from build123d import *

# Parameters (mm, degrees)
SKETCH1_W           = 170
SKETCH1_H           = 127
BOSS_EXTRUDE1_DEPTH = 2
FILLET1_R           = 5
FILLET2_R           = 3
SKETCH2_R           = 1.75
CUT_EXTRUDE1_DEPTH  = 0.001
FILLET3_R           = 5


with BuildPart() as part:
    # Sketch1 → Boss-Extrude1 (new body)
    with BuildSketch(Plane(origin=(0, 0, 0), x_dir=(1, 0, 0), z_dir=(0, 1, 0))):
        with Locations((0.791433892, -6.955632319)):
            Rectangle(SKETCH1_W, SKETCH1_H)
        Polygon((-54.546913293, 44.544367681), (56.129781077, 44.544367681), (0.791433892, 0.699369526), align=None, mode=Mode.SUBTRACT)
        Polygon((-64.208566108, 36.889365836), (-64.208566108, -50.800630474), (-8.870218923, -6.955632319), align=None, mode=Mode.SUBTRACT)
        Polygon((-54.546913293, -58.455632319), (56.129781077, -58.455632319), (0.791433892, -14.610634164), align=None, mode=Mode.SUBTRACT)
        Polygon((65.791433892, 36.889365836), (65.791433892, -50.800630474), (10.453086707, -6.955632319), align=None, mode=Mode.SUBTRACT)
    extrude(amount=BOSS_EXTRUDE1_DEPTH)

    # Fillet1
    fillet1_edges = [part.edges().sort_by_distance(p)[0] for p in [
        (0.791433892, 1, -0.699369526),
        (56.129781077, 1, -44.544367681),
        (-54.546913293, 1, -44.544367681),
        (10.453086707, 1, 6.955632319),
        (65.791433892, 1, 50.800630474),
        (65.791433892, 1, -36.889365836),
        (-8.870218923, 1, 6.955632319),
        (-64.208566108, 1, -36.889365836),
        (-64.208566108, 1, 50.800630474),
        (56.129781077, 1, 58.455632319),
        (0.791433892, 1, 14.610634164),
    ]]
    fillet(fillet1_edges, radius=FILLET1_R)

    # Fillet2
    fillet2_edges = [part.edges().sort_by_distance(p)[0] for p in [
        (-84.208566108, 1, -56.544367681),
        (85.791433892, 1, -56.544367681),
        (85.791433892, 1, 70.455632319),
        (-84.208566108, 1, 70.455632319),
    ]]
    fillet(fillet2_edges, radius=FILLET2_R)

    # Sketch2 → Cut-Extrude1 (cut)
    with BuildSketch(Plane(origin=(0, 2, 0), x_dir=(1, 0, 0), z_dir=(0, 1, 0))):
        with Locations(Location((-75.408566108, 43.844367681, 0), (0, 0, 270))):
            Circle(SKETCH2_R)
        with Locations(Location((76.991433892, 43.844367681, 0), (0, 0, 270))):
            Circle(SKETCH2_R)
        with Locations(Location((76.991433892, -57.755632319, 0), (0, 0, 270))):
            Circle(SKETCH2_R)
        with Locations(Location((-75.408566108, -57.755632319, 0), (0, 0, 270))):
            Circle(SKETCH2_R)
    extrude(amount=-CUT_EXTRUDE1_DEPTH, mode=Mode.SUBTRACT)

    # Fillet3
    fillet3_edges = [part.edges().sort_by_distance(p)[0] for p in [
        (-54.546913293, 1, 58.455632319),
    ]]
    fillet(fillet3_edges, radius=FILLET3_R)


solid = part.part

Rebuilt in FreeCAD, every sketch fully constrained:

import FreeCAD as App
import Part
import Sketcher


def edges_at(feature, points):
    """Names of the edges that pass closest to the given points."""
    edges = feature.Shape.Edges
    near = lambda p: min(range(len(edges)), key=lambda i: edges[i].distToShape(Part.Vertex(*p))[0])
    return sorted({f"Edge{near(p) + 1}" for p in points})

doc = App.newDocument("Part")
body = doc.addObject("PartDesign::Body", "Body")

# Sketch on XZ plane
sketch1 = doc.addObject("Sketcher::SketchObject", "Sketch")
body.addObject(sketch1)
sketch1.AttachmentSupport = (doc.XZ_Plane, [""])
sketch1.MapMode = "FlatFace"
sketch1.addGeometry([
    Part.LineSegment(App.Vector(-84, -57, 0), App.Vector(-84, 70, 0)),  # 0
    Part.LineSegment(App.Vector(-84, 70, 0), App.Vector(86, 70, 0)),  # 1
    Part.LineSegment(App.Vector(86, 70, 0), App.Vector(86, -57, 0)),  # 2
    Part.LineSegment(App.Vector(86, -57, 0), App.Vector(-84, -57, 0)),  # 3
    Part.LineSegment(App.Vector(-64, 51, 0), App.Vector(-64, -37, 0)),  # 4
    Part.LineSegment(App.Vector(-64, -37, 0), App.Vector(-9, 7, 0)),  # 5
    Part.LineSegment(App.Vector(-9, 7, 0), App.Vector(-64, 51, 0)),  # 6
    Part.LineSegment(App.Vector(56, 58, 0), App.Vector(-55, 58, 0)),  # 7
    Part.LineSegment(App.Vector(-55, 58, 0), App.Vector(1, 15, 0)),  # 8
    Part.LineSegment(App.Vector(1, 15, 0), App.Vector(56, 58, 0)),  # 9
    Part.LineSegment(App.Vector(10, 7, 0), App.Vector(66, -37, 0)),  # 10
    Part.LineSegment(App.Vector(66, -37, 0), App.Vector(66, 51, 0)),  # 11
    Part.LineSegment(App.Vector(66, 51, 0), App.Vector(10, 7, 0)),  # 12
    Part.LineSegment(App.Vector(1, -1, 0), App.Vector(-55, -45, 0)),  # 13
    Part.LineSegment(App.Vector(-55, -45, 0), App.Vector(56, -45, 0)),  # 14
    Part.LineSegment(App.Vector(56, -45, 0), App.Vector(1, -1, 0)),  # 15
], False)
sketch1.addConstraint([
    Sketcher.Constraint("Coincident", 0, 2, 1, 1),
    Sketcher.Constraint("Coincident", 1, 2, 2, 1),
    Sketcher.Constraint("Coincident", 2, 2, 3, 1),
    Sketcher.Constraint("Coincident", 3, 2, 0, 1),
    Sketcher.Constraint("Coincident", 4, 2, 5, 1),
    Sketcher.Constraint("Coincident", 5, 2, 6, 1),
    Sketcher.Constraint("Coincident", 6, 2, 4, 1),
    Sketcher.Constraint("Coincident", 7, 2, 8, 1),
    Sketcher.Constraint("Coincident", 8, 2, 9, 1),
    Sketcher.Constraint("Coincident", 9, 2, 7, 1),
    Sketcher.Constraint("Coincident", 10, 2, 11, 1),
    Sketcher.Constraint("Coincident", 11, 2, 12, 1),
    Sketcher.Constraint("Coincident", 12, 2, 10, 1),
    Sketcher.Constraint("Coincident", 13, 2, 14, 1),
    Sketcher.Constraint("Coincident", 14, 2, 15, 1),
    Sketcher.Constraint("Coincident", 15, 2, 13, 1),
    Sketcher.Constraint("Vertical", 0),
    Sketcher.Constraint("Horizontal", 1),
    Sketcher.Constraint("Vertical", 2),
    Sketcher.Constraint("Horizontal", 3),
    Sketcher.Constraint("Vertical", 4),
    Sketcher.Constraint("Horizontal", 7),
    Sketcher.Constraint("Vertical", 11),
    Sketcher.Constraint("Horizontal", 14),
    Sketcher.Constraint("Parallel", 6, 8),
    Sketcher.Constraint("Parallel", 5, 9),
    Sketcher.Constraint("Parallel", 8, 10),
    Sketcher.Constraint("Parallel", 9, 12),
    Sketcher.Constraint("Parallel", 12, 13),
    Sketcher.Constraint("Parallel", 10, 15),
    Sketcher.Constraint("Horizontal", 4, 2, 10, 2),
    Sketcher.Constraint("Horizontal", 6, 2, 11, 2),
    Sketcher.Constraint("Horizontal", 5, 2, 12, 2),
    Sketcher.Constraint("Vertical", 7, 2, 13, 2),
    Sketcher.Constraint("Vertical", 9, 2, 14, 2),
    Sketcher.Constraint("Equal", 6, 8),
    Sketcher.Constraint("DistanceX", 1, 1, 1, 2, 170.0),
    Sketcher.Constraint("DistanceY", 0, 1, 0, 2, 127.0),
    Sketcher.Constraint("DistanceX", 3, 2, 4, 2, 20.0),
    Sketcher.Constraint("DistanceY", 7, 2, 0, 2, 12.0),
    Sketcher.Constraint("DistanceX", 6, 2, 8, 2, 65.0),
    Sketcher.Constraint("DistanceX", 10, 2, 2, 2, 20.0),
    Sketcher.Constraint("DistanceY", 3, 2, 13, 2, 12.0),
    Sketcher.Constraint("DistanceY", 5, 2, 0, 2, 63.5),
    Sketcher.Constraint("DistanceY", 3, 2, 4, 2, 19.655002),
    Sketcher.Constraint("DistanceX", 7, 2, 7, 1, 110.676694),
    Sketcher.Constraint("DistanceX", 5, 2, -1, 1, 8.870219),
    Sketcher.Constraint("DistanceY", -1, 1, 6, 2, 50.80063),
])
pad1 = doc.addObject("PartDesign::Pad", "Pad")
body.addObject(pad1)
pad1.Profile = sketch1
pad1.Length = 2
pad1.Reversed = True
doc.recompute()

fillet = doc.addObject("PartDesign::Fillet", "Fillet")
body.addObject(fillet)
fillet.Base = (pad1, edges_at(pad1, [
    (0.791, 1, -0.699),
    (56.13, 1, -44.544),
    (-54.547, 1, -44.544),
    (10.453, 1, 6.956),
    (65.791, 1, 50.801),
    (65.791, 1, -36.889),
    (-8.87, 1, 6.956),
    (-64.209, 1, -36.889),
    (-64.209, 1, 50.801),
    (56.13, 1, 58.456),
    (0.791, 1, 14.611),
]))
fillet.Radius = 5
doc.recompute()

fillet2 = doc.addObject("PartDesign::Fillet", "Fillet001")
body.addObject(fillet2)
fillet2.Base = (fillet, edges_at(fillet, [
    (-84.209, 1, -56.544),
    (85.791, 1, -56.544),
    (85.791, 1, 70.456),
    (-84.209, 1, 70.456),
]))
fillet2.Radius = 3

# Sketch on XZ plane
sketch2 = doc.addObject("Sketcher::SketchObject", "Sketch001")
body.addObject(sketch2)
sketch2.AttachmentSupport = (doc.XZ_Plane, [""])
sketch2.MapMode = "FlatFace"
sketch2.AttachmentOffset = App.Placement(App.Vector(0, 0, -2), App.Rotation())
sketch2.addGeometry([
    Part.Circle(App.Vector(-75.4, -43.8, 0), App.Vector(0, 0, 1), 1.8),
    Part.Circle(App.Vector(77, -43.8, 0), App.Vector(0, 0, 1), 1.8),
    Part.Circle(App.Vector(77, 57.8, 0), App.Vector(0, 0, 1), 1.8),
    Part.Circle(App.Vector(-75.4, 57.8, 0), App.Vector(0, 0, 1), 1.8),
], False)
sketch2.addConstraint([
    Sketcher.Constraint("Equal", 0, 1),
    Sketcher.Constraint("Equal", 1, 2),
    Sketcher.Constraint("Equal", 2, 3),
    Sketcher.Constraint("Horizontal", 0, 3, 1, 3),
    Sketcher.Constraint("Horizontal", 2, 3, 3, 3),
    Sketcher.Constraint("Vertical", 1, 3, 2, 3),
    Sketcher.Constraint("Vertical", 0, 3, 3, 3),
    Sketcher.Constraint("Diameter", 0, 3.5),
    Sketcher.Constraint("DistanceX", 0, 3, 1, 3, 152.4),
    Sketcher.Constraint("DistanceY", 1, 3, 2, 3, 101.6),
    Sketcher.Constraint("DistanceX", 0, 3, -1, 1, 75.408566),
    Sketcher.Constraint("DistanceY", 0, 3, -1, 1, 43.844368),
])
pocket1 = doc.addObject("PartDesign::Pocket", "Pocket")
body.addObject(pocket1)
pocket1.Profile = sketch2
pocket1.Length = 0.001
pocket1.Reversed = True
doc.recompute()

fillet3 = doc.addObject("PartDesign::Fillet", "Fillet002")
body.addObject(fillet3)
fillet3.Base = (pocket1, edges_at(pocket1, [(-54.547, 1, 58.456)]))
fillet3.Radius = 5

doc.recompute()
